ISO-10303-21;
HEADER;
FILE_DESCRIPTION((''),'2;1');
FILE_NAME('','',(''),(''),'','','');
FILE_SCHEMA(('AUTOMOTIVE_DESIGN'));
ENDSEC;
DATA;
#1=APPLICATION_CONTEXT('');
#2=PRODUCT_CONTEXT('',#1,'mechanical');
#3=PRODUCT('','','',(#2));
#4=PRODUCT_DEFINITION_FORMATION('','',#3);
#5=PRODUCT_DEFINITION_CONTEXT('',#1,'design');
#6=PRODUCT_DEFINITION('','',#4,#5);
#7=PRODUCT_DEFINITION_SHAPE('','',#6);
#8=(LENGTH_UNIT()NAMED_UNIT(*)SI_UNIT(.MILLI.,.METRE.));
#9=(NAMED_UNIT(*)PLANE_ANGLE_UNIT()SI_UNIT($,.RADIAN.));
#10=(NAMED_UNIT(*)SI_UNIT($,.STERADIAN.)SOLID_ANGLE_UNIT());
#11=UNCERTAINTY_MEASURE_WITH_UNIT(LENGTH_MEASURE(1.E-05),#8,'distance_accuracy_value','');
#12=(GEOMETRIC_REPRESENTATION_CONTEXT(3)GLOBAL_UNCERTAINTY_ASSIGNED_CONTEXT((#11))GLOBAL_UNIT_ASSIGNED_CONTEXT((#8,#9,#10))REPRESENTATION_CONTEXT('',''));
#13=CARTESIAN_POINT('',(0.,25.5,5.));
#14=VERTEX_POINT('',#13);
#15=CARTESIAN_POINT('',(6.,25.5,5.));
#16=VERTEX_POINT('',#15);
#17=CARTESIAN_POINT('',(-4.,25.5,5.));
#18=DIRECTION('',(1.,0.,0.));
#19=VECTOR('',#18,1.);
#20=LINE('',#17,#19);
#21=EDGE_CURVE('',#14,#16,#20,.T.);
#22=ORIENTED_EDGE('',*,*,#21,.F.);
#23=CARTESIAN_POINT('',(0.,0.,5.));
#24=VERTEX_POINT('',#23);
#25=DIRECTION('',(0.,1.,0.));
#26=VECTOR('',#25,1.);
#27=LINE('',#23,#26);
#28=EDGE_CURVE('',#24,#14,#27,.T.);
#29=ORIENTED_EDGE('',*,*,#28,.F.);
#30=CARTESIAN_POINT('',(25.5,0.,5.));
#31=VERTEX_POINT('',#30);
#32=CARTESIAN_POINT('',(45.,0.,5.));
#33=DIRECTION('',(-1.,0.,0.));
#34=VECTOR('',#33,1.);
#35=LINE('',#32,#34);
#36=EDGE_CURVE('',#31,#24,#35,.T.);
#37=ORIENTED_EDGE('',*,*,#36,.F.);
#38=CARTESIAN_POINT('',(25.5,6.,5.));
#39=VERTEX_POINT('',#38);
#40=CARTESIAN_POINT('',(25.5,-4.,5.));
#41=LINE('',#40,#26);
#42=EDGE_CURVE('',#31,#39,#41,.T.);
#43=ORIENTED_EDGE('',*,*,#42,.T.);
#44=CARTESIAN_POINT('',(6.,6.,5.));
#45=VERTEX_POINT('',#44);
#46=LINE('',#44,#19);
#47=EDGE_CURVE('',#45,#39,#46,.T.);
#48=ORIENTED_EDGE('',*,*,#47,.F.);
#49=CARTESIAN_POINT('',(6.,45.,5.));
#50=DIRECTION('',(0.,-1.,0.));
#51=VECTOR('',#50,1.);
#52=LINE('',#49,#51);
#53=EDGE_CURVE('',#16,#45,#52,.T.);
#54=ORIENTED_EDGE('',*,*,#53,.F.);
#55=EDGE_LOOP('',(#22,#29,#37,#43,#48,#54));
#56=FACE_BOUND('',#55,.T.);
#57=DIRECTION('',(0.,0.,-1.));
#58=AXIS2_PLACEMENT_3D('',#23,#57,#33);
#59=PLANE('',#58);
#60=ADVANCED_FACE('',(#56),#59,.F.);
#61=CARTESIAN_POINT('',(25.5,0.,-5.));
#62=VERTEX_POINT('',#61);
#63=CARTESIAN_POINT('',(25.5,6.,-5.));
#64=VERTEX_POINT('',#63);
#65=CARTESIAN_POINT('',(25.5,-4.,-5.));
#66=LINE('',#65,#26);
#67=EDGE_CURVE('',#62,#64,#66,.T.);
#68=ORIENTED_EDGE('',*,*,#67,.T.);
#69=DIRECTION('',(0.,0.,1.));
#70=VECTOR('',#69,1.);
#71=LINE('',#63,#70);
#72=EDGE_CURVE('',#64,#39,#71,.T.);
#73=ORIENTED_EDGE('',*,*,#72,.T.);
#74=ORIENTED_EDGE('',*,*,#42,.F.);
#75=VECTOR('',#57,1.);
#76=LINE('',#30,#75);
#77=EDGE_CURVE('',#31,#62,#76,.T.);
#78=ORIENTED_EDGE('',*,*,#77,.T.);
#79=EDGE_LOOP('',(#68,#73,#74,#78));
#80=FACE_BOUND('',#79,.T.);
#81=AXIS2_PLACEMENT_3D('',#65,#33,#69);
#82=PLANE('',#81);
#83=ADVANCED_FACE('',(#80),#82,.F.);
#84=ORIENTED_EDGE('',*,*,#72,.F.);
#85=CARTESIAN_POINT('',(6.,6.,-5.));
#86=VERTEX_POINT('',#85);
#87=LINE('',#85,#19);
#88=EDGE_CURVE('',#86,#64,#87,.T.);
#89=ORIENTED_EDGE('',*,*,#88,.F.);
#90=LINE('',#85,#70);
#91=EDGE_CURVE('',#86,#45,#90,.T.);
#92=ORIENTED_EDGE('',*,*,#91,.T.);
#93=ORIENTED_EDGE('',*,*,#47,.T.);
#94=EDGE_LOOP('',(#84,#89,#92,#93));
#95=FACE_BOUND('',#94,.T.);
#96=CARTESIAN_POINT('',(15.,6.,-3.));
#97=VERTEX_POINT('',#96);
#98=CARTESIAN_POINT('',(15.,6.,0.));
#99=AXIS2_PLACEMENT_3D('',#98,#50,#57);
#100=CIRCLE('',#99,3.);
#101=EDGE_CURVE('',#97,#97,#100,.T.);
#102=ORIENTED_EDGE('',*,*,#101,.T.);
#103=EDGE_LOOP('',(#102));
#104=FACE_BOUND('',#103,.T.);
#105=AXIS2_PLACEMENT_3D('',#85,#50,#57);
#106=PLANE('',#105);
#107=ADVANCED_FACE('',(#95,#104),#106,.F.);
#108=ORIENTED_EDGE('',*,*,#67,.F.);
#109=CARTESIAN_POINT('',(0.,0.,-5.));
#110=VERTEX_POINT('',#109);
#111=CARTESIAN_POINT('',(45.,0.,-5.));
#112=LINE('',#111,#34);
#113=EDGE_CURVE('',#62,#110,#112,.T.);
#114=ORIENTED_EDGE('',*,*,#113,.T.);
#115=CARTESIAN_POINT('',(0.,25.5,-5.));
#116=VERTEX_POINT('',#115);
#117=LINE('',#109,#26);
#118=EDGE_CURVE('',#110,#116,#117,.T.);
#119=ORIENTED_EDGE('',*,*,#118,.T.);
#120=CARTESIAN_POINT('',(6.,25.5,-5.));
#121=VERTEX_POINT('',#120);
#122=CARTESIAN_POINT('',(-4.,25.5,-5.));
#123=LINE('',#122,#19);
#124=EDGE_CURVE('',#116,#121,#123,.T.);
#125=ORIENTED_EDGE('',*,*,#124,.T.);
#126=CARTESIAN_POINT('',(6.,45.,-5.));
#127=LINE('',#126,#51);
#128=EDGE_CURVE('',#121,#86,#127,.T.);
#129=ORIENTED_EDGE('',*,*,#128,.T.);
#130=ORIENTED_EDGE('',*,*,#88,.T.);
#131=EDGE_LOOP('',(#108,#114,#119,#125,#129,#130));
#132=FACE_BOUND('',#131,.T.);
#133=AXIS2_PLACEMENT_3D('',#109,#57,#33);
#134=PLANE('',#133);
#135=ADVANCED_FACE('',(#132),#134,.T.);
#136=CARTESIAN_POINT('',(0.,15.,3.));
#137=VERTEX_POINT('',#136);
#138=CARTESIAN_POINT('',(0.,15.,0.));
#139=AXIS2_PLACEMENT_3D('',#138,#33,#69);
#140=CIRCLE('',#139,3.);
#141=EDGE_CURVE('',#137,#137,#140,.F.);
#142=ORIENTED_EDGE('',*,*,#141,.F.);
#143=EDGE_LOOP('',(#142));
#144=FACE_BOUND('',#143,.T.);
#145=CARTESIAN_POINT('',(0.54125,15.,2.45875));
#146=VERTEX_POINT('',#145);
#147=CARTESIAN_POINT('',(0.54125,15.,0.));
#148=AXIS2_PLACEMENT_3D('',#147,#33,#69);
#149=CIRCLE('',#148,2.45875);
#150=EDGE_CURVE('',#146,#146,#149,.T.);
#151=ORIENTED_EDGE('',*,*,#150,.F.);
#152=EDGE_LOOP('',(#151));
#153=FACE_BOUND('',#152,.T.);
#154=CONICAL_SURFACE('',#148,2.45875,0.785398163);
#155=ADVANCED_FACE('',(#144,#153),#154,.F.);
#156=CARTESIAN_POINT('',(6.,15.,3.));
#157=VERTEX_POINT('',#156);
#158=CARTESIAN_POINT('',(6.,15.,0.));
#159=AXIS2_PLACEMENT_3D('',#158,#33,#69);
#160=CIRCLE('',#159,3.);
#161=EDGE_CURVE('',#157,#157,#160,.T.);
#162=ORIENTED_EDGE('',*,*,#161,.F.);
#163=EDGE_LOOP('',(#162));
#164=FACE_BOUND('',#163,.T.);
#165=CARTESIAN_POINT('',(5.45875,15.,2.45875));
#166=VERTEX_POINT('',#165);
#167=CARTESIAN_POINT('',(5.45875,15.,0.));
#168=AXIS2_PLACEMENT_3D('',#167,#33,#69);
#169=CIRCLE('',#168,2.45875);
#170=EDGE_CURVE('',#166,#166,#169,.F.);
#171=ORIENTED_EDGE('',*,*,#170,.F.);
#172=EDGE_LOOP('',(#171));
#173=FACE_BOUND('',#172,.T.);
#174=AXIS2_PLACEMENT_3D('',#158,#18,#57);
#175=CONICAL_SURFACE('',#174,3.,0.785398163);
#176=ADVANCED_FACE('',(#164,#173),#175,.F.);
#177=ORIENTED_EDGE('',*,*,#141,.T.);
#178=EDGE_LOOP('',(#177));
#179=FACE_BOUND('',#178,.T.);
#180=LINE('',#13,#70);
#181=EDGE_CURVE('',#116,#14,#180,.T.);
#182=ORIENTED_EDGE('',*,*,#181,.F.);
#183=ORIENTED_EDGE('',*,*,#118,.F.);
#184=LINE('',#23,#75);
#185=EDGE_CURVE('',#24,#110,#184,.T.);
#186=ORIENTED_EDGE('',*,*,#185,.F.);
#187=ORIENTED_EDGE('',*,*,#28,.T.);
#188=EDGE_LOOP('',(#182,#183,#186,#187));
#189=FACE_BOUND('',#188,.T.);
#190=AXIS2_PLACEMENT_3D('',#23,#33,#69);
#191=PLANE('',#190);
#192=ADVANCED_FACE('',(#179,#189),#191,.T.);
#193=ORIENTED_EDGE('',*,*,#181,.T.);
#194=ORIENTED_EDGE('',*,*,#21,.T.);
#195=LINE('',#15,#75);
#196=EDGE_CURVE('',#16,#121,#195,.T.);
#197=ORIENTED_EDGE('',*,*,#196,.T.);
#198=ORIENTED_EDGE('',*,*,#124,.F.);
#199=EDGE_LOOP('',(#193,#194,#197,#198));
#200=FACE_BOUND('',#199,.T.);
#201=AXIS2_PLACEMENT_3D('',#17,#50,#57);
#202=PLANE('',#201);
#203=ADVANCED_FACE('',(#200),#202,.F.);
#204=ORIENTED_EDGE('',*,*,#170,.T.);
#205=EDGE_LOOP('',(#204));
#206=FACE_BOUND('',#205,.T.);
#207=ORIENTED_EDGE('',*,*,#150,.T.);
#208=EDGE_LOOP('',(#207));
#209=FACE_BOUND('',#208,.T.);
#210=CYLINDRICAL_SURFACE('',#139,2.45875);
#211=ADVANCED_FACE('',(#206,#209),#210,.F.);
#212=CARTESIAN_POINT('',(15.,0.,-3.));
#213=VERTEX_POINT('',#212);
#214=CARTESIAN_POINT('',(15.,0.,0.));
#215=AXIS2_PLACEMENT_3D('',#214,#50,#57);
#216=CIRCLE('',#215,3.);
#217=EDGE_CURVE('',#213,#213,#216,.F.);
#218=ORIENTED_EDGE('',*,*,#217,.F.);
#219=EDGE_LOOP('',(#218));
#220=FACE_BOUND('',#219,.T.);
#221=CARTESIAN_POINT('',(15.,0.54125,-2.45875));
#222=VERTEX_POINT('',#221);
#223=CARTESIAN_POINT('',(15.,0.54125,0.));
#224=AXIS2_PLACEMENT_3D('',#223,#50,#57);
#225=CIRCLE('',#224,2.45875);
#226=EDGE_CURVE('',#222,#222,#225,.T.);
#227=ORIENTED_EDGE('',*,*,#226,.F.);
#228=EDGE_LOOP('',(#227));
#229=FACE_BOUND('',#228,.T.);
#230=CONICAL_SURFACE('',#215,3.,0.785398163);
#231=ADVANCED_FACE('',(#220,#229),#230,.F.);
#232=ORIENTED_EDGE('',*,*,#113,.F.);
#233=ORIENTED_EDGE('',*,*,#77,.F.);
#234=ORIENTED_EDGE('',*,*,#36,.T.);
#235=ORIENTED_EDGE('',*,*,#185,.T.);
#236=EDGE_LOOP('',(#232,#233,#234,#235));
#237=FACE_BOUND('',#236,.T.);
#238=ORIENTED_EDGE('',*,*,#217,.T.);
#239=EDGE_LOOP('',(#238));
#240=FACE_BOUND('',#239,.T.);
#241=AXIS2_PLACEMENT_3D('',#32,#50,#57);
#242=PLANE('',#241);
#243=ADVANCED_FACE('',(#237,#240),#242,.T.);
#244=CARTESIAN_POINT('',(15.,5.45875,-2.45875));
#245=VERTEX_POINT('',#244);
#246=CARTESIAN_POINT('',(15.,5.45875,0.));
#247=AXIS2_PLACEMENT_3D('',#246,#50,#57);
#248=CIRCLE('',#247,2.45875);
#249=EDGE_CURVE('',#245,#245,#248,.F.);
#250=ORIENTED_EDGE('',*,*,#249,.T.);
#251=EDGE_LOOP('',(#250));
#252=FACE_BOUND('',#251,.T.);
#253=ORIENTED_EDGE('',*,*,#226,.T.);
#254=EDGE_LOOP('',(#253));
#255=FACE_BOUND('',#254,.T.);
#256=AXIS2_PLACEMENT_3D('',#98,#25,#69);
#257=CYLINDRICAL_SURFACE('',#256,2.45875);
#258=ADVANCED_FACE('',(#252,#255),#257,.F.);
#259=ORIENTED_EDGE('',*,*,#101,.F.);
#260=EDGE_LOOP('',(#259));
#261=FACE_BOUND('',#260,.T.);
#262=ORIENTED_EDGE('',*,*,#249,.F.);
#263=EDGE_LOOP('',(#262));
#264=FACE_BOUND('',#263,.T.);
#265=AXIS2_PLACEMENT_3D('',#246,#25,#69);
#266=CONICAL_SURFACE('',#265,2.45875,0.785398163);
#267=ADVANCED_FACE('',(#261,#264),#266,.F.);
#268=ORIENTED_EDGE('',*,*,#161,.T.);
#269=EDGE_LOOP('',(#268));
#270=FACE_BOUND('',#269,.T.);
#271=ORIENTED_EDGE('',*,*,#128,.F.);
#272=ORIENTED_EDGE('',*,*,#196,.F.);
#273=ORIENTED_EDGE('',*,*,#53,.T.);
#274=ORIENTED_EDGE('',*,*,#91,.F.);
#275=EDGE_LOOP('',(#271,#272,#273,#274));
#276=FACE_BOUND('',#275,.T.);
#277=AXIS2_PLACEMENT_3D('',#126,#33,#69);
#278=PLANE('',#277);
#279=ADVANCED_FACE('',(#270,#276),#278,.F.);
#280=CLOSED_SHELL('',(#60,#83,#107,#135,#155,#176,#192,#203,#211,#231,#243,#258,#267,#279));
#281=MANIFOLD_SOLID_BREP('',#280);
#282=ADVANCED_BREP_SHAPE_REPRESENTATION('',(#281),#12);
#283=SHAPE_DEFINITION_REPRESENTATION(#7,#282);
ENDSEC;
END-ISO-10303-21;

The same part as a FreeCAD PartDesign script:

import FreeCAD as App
import Part
import Sketcher

V = App.Vector


def edges_at(feature, points):
    """Names of the edges that pass closest to the given points."""
    edges = feature.Shape.Edges
    near = lambda p: min(range(len(edges)), key=lambda i: edges[i].distToShape(Part.Vertex(*p))[0])
    return sorted({f"Edge{near(p) + 1}" for p in points})


def add_polygon(sketch, points):
    """Adds a closed chain of lines whose ends are joined by coincident constraints."""
    first, n = sketch.GeometryCount, len(points)
    for a, b in zip(points, points[1:] + points[:1]):
        sketch.addGeometry(Part.LineSegment(App.Vector(*a, 0), App.Vector(*b, 0)), False)
    for i in range(n):
        sketch.addConstraint(Sketcher.Constraint("Coincident", first + i, 2, first + (i + 1) % n, 1))

doc = App.newDocument("Part")
params = doc.addObject("Spreadsheet::Sheet", "Params")
for row, (alias, value) in enumerate([
    ("sketch1_width", "45 mm"),
    ("pad1_length", "10 mm"),
    ("sketch2_width", "39 mm"),
    ("hole_diameter", "4.9175 mm"),
    ("hole2_diameter", "4.9175 mm"),
    ("hole2_depth", "45 mm"),
    ("hole3_diameter", "4.9175 mm"),
    ("chamfer_size", "0.54125 mm"),
    ("sketch6_height", "10 mm"),
    ("sketch6_width", "19.5 mm"),
    ("pocket2_length", "10 mm"),
    ("sketch7_height", "10 mm"),
    ("sketch7_width", "19.5 mm"),
    ("pocket3_length", "10 mm"),
], start=1):
    params.set(f"A{row}", alias)
    params.set(f"B{row}", "=" + value)
    params.setAlias(f"B{row}", alias)

body = doc.addObject("PartDesign::Body", "Body")

sketch1 = doc.addObject("Sketcher::SketchObject", "Sketch")
body.addObject(sketch1)
sketch1.AttachmentSupport = (doc.XY_Plane, [""])
sketch1.MapMode = "FlatFace"
sketch1.AttachmentOffset = App.Placement(V(0, 0, -5), App.Rotation())
add_polygon(sketch1, [(45, 45), (45, 0), (0, 0), (0, 45)])
sketch1.addConstraint([
    Sketcher.Constraint("Vertical", 0),
    Sketcher.Constraint("Horizontal", 1),
    Sketcher.Constraint("Vertical", 2),
    Sketcher.Constraint("Horizontal", 3),
    Sketcher.Constraint("Coincident", 1, 2, -1, 1),
    Sketcher.Constraint("Equal", 3, 0),
    Sketcher.Constraint("DistanceX", 1, 2, 1, 1, 45.0),
])
sketch1.setExpression("Constraints[10]", "Params.sketch1_width")
pad1 = doc.addObject("PartDesign::Pad", "Pad")
body.addObject(pad1)
pad1.Profile = sketch1
pad1.setExpression("Length", "Params.pad1_length")

sketch2 = doc.addObject("Sketcher::SketchObject", "Sketch001")
body.addObject(sketch2)
sketch2.AttachmentSupport = (doc.XY_Plane, [""])
sketch2.MapMode = "FlatFace"
sketch2.AttachmentOffset = App.Placement(V(0, 0, 5), App.Rotation())
add_polygon(sketch2, [(6, 45), (6, 6), (45, 6), (45, 45)])
sketch2.addConstraint([
    Sketcher.Constraint("Vertical", 0),
    Sketcher.Constraint("Horizontal", 1),
    Sketcher.Constraint("Vertical", 2),
    Sketcher.Constraint("Horizontal", 3),
    Sketcher.Constraint("Equal", 3, 0),
    Sketcher.Constraint("DistanceX", 1, 1, 1, 2, 39.0),
    Sketcher.Constraint("DistanceX", -1, 1, 0, 2, 6.0),
    Sketcher.Constraint("DistanceY", -1, 1, 0, 2, 6.0),
])
sketch2.setExpression("Constraints[9]", "Params.sketch2_width")
pocket1 = doc.addObject("PartDesign::Pocket", "Pocket")
body.addObject(pocket1)
pocket1.Profile = sketch2
pocket1.Type = "ThroughAll"

sketch3 = doc.addObject("Sketcher::SketchObject", "Sketch002")
body.addObject(sketch3)
sketch3.AttachmentSupport = (doc.XZ_Plane, [""])
sketch3.MapMode = "FlatFace"
sketch3.AttachmentOffset = App.Placement(V(0, 0, -6), App.Rotation())
sketch3.addGeometry([
    Part.Circle(V(35, 0, 0), V(0, 0, 1), 2.45875),
    Part.Circle(V(15, 0, 0), V(0, 0, 1), 2.45875),
], False)
sketch3.addConstraint([
    Sketcher.Constraint("Equal", 0, 1),
    Sketcher.Constraint("PointOnObject", 0, 3, -1),
    Sketcher.Constraint("PointOnObject", 1, 3, -1),
    Sketcher.Constraint("DistanceX", -1, 1, 0, 3, 35.0),
    Sketcher.Constraint("DistanceX", -1, 1, 1, 3, 15.0),
    Sketcher.Constraint("Diameter", 0, 4.9175),
])
doc.recompute()
hole = doc.addObject("PartDesign::Hole", "Hole")
body.addObject(hole)
hole.Profile = sketch3
hole.ThreadType = "None"
hole.setExpression("Diameter", "Params.hole_diameter")
hole.DepthType = "ThroughAll"
hole.Reversed = True

sketch4 = doc.addObject("Sketcher::SketchObject", "Sketch003")
body.addObject(sketch4)
sketch4.AttachmentSupport = (doc.YZ_Plane, [""])
sketch4.MapMode = "FlatFace"
sketch4.addGeometry(Part.Circle(V(15, 0, 0), V(0, 0, 1), 2.45875), False)
sketch4.addConstraint([
    Sketcher.Constraint("PointOnObject", 0, 3, -1),
    Sketcher.Constraint("DistanceX", -1, 1, 0, 3, 15.0),
    Sketcher.Constraint("Diameter", 0, 4.9175),
])
doc.recompute()
hole2 = doc.addObject("PartDesign::Hole", "Hole001")
body.addObject(hole2)
hole2.Profile = sketch4
hole2.ThreadType = "None"
hole2.setExpression("Diameter", "Params.hole2_diameter")
hole2.DepthType = "Dimension"
hole2.setExpression("Depth", "Params.hole2_depth")
hole2.DrillPoint = "Flat"
hole2.Reversed = True

sketch5 = doc.addObject("Sketcher::SketchObject", "Sketch004")
body.addObject(sketch5)
sketch5.AttachmentSupport = (doc.YZ_Plane, [""])
sketch5.MapMode = "FlatFace"
sketch5.AttachmentOffset = App.Placement(V(0, 0, 6), App.Rotation())
sketch5.addGeometry(Part.Circle(V(35, 0, 0), V(0, 0, 1), 2.45875), False)
sketch5.addConstraint([
    Sketcher.Constraint("PointOnObject", 0, 3, -1),
    Sketcher.Constraint("DistanceX", -1, 1, 0, 3, 35.0),
    Sketcher.Constraint("Diameter", 0, 4.9175),
])
doc.recompute()
hole3 = doc.addObject("PartDesign::Hole", "Hole002")
body.addObject(hole3)
hole3.Profile = sketch5
hole3.ThreadType = "None"
hole3.setExpression("Diameter", "Params.hole3_diameter")
hole3.DepthType = "ThroughAll"
doc.recompute()

chamfer = doc.addObject("PartDesign::Chamfer", "Chamfer")
body.addObject(chamfer)
chamfer.Base = (hole3, edges_at(hole3, [
    (17.459, 6, 0),
    (17.459, 0, 0),
    (37.459, 6, 0),
    (37.459, 0, 0),
    (6, 15, 2.459),
    (0, 15, 2.459),
    (6, 35, -2.459),
    (0, 35, -2.459),
]))
chamfer.setExpression("Size", "Params.chamfer_size")

sketch6 = doc.addObject("Sketcher::SketchObject", "Sketch005")
body.addObject(sketch6)
sketch6.AttachmentSupport = (doc.XZ_Plane, [""])
sketch6.MapMode = "FlatFace"
sketch6.AttachmentOffset = App.Placement(V(0, 0, -6), App.Rotation())
add_polygon(sketch6, [(25.5, -5), (25.5, 5), (45, 5), (45, -5)])
sketch6.addConstraint([
    Sketcher.Constraint("Vertical", 0),
    Sketcher.Constraint("Horizontal", 1),
    Sketcher.Constraint("Vertical", 2),
    Sketcher.Constraint("Horizontal", 3),
    Sketcher.Constraint("DistanceY", 0, 1, 0, 2, 10.0),
    Sketcher.Constraint("DistanceX", 1, 1, 1, 2, 19.5),
    Sketcher.Constraint("DistanceY", -1, 1, 0, 2, 5.0),
    Sketcher.Constraint("DistanceX", -1, 1, 1, 2, 45.0),
])
sketch6.setExpression("Constraints[8]", "Params.sketch6_height")
sketch6.setExpression("Constraints[9]", "Params.sketch6_width")
pocket2 = doc.addObject("PartDesign::Pocket", "Pocket001")
body.addObject(pocket2)
pocket2.Profile = sketch6
pocket2.setExpression("Length", "Params.pocket2_length")
pocket2.Reversed = True

sketch7 = doc.addObject("Sketcher::SketchObject", "Sketch006")
body.addObject(sketch7)
sketch7.AttachmentSupport = (doc.YZ_Plane, [""])
sketch7.MapMode = "FlatFace"
sketch7.AttachmentOffset = App.Placement(V(0, 0, 6), App.Rotation())
add_polygon(sketch7, [(45, 5), (25.5, 5), (25.5, -5), (45, -5)])
sketch7.addConstraint([
    Sketcher.Constraint("Horizontal", 0),
    Sketcher.Constraint("Vertical", 1),
    Sketcher.Constraint("Horizontal", 2),
    Sketcher.Constraint("Vertical", 3),
    Sketcher.Constraint("DistanceY", 1, 2, 1, 1, 10.0),
    Sketcher.Constraint("DistanceX", 0, 2, 0, 1, 19.5),
    Sketcher.Constraint("DistanceY", -1, 1, 0, 2, 5.0),
    Sketcher.Constraint("DistanceX", -1, 1, 2, 2, 45.0),
])
sketch7.setExpression("Constraints[8]", "Params.sketch7_height")
sketch7.setExpression("Constraints[9]", "Params.sketch7_width")
pocket3 = doc.addObject("PartDesign::Pocket", "Pocket002")
body.addObject(pocket3)
pocket3.Profile = sketch7
pocket3.setExpression("Length", "Params.pocket3_length")

doc.recompute()
